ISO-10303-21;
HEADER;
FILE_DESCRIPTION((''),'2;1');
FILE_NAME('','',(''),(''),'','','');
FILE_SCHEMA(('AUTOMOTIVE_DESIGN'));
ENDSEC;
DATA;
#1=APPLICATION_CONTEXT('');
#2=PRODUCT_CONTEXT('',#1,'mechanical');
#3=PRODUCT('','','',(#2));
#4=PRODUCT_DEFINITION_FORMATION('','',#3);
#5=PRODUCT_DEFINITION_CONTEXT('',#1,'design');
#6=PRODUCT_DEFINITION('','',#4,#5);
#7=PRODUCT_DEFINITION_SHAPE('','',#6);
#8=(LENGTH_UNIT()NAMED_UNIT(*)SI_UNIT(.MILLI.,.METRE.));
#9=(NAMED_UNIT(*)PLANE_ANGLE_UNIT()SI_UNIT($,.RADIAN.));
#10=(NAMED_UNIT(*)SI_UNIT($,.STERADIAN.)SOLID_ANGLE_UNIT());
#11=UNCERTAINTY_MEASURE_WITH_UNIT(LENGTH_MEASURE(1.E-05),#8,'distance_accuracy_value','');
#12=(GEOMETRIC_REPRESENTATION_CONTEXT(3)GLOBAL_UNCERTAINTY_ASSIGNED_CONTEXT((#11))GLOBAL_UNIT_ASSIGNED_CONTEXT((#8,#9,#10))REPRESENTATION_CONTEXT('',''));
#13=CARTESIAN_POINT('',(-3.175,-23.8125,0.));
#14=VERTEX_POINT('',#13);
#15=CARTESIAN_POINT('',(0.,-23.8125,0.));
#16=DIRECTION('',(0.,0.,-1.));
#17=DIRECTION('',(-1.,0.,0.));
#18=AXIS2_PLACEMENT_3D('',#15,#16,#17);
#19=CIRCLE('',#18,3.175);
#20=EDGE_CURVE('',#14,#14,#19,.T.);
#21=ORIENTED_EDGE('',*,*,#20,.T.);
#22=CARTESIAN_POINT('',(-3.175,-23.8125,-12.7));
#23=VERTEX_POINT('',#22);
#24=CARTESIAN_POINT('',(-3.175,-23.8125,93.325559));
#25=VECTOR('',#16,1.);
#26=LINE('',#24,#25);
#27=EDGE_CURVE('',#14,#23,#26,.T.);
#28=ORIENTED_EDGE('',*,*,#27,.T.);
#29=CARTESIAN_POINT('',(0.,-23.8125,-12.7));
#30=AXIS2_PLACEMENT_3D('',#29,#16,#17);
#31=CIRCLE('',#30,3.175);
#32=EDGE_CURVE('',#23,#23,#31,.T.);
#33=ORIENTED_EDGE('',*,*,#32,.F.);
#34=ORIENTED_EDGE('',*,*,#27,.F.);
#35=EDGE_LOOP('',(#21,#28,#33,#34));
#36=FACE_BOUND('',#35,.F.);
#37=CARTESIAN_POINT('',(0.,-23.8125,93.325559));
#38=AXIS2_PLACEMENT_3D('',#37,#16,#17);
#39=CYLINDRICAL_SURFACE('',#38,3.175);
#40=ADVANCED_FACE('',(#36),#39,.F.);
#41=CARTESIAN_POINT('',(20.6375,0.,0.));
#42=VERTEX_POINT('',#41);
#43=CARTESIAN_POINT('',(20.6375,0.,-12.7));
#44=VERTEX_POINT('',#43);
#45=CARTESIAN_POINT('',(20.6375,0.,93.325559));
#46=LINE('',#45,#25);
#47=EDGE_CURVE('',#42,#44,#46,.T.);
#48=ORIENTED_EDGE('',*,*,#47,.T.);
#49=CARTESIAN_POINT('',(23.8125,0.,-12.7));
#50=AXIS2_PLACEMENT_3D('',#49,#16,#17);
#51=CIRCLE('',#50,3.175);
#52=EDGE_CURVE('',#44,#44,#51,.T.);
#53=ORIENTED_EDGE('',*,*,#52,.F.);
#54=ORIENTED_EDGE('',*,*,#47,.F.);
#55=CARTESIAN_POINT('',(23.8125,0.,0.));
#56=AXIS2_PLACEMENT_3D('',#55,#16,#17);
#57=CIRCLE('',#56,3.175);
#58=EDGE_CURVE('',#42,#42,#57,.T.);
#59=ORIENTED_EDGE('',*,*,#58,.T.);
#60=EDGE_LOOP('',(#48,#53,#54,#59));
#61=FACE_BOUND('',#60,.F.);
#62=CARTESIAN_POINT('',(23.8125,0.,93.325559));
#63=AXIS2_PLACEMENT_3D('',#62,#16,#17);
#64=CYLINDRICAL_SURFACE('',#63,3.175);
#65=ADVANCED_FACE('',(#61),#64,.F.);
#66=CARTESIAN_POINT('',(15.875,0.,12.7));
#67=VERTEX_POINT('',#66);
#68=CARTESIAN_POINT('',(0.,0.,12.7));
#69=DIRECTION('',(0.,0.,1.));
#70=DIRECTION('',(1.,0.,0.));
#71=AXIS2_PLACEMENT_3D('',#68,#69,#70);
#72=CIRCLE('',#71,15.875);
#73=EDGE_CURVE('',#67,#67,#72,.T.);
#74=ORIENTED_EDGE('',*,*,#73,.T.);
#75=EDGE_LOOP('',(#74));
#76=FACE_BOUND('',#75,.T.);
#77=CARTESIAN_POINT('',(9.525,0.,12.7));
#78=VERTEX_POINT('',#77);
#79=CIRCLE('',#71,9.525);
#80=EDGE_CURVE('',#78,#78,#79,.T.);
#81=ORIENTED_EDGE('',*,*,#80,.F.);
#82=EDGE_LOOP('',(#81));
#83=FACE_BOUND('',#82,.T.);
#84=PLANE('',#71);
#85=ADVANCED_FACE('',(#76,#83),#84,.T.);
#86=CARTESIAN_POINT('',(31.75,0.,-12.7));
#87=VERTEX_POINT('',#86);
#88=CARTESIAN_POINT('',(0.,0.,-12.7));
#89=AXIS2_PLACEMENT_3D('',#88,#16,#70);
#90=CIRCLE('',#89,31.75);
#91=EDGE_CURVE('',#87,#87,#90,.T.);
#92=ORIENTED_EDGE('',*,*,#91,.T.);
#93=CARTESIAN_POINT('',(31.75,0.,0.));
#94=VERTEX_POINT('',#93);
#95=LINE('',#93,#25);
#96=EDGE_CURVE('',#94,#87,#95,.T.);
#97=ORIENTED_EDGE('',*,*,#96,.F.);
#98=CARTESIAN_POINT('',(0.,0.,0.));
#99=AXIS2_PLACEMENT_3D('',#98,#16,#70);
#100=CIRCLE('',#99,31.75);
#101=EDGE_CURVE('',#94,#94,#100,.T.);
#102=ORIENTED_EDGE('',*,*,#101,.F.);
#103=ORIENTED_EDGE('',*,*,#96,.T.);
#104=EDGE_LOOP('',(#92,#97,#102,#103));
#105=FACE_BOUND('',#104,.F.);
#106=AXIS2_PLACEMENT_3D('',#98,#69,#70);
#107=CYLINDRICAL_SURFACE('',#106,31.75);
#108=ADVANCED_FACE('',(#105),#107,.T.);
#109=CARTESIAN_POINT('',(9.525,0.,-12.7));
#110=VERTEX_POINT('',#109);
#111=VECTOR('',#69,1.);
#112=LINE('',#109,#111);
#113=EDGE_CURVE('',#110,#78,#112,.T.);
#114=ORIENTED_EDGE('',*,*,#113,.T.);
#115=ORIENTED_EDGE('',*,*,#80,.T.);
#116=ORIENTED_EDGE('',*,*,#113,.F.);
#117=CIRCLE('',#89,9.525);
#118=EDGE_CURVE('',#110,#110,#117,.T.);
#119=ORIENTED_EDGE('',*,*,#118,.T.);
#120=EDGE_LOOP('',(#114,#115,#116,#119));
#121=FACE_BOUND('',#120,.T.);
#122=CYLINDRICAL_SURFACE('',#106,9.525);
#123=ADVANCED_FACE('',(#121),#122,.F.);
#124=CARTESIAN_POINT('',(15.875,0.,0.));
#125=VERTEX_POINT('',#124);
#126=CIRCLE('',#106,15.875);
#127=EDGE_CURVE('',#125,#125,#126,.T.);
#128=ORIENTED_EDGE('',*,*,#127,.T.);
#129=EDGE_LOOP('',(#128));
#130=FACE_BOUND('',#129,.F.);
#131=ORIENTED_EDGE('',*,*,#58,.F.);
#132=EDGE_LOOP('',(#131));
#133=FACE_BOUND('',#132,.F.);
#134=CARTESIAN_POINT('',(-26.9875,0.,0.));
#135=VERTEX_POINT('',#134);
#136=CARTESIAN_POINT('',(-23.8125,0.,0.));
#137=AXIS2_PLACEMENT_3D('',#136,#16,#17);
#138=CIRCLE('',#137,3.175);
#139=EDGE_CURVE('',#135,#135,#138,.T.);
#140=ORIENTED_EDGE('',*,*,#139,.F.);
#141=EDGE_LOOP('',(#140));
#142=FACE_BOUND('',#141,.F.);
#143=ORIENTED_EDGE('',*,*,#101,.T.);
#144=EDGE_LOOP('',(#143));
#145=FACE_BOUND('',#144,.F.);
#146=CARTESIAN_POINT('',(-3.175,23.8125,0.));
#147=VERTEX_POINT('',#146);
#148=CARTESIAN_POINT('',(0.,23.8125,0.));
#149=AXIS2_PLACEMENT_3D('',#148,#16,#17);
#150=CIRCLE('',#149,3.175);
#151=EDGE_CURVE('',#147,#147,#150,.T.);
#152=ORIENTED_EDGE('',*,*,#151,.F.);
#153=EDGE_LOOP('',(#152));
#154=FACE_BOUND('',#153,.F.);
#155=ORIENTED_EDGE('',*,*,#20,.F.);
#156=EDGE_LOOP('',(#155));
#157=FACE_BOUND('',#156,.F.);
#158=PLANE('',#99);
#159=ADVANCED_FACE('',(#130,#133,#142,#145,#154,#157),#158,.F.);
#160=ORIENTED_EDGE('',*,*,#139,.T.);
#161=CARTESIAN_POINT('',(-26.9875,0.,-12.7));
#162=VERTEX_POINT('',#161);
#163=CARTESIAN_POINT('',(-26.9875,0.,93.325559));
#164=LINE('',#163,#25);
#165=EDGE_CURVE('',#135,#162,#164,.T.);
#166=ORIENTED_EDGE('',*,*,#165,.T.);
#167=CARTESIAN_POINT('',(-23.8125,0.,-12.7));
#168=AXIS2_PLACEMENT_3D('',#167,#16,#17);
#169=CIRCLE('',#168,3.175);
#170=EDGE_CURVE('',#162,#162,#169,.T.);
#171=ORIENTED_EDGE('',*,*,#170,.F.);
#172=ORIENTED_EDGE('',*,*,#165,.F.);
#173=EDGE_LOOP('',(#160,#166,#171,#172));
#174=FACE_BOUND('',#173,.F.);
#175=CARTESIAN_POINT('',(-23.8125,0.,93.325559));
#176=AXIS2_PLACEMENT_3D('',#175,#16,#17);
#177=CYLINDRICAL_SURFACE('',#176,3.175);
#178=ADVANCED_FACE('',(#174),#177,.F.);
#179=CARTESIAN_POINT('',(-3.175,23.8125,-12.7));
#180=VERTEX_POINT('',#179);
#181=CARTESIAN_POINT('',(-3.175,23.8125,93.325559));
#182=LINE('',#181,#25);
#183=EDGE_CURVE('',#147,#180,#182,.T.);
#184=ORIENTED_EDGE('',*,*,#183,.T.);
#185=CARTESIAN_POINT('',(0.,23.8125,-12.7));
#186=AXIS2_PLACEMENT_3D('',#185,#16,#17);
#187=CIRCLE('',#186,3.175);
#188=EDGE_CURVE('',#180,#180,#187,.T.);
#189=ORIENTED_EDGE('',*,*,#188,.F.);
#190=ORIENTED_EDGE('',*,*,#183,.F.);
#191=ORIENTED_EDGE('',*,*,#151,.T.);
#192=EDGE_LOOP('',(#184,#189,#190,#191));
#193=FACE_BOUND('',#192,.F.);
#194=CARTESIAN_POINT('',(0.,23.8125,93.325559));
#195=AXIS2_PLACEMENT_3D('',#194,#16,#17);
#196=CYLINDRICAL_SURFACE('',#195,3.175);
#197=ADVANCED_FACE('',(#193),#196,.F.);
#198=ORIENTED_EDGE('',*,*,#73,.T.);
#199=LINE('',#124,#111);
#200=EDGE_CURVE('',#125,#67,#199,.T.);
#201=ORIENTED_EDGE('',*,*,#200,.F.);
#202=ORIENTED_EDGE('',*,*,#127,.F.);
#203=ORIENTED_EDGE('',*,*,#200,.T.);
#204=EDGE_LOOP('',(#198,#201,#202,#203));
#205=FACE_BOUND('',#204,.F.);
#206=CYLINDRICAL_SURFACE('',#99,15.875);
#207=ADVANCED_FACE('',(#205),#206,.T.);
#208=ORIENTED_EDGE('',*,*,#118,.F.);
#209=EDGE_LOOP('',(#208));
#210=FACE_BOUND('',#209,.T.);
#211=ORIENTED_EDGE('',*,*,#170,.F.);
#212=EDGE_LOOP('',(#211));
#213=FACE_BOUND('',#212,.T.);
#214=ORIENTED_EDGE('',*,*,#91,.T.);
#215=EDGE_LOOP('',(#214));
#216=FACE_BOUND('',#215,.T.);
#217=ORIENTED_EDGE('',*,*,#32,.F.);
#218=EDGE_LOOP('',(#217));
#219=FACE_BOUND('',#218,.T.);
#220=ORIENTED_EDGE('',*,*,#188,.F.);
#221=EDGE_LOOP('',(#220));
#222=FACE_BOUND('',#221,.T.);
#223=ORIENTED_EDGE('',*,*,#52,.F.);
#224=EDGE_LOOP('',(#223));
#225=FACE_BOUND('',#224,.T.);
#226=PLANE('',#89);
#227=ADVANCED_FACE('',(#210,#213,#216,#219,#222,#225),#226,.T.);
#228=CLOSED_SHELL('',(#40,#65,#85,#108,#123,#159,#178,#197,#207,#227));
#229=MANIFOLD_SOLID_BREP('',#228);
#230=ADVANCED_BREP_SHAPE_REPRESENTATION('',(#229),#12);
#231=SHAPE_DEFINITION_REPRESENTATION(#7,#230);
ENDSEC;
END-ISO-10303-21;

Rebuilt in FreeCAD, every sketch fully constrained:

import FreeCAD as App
import Part
import Sketcher
from FreeCAD import Vector
Q = App.Units.Quantity

doc = App.newDocument("Part")
params = doc.addObject("Spreadsheet::Sheet", "Params")
for row, (alias, value) in enumerate([
    ("sketch1_diameter", "1.25 in"),
    ("sketch1_diameter2", "0.75 in"),
    ("pad1_length", "0.5 in"),
    ("sketch2_diameter", "2.5 in"),
    ("sketch2_diameter2", "0.75 in"),
    ("pad2_length", "0.5 in"),
    ("sketch3_diameter", "0.25 in"),
    ("hole_diameter", "0.25 in"),
], start=1):
    params.set(f"A{row}", alias)
    params.set(f"B{row}", "=" + value)
    params.setAlias(f"B{row}", alias)

body = doc.addObject("PartDesign::Body", "Body")

# Sketch on XY plane
sketch1 = body.newObject("Sketcher::SketchObject", "Sketch")
sketch1.AttachmentSupport = (doc.getObject("XY_Plane"), [""])
sketch1.MapMode = "FlatFace"
sketch1.addGeometry([
    Part.Circle(Vector(0, 0, 0), Vector(0, 0, 1), 16),
    Part.Circle(Vector(0, 0, 0), Vector(0, 0, 1), 10),
], False)
sketch1.addConstraint([
    Sketcher.Constraint("Coincident", 0, 3, -1, 1),
    Sketcher.Constraint("Coincident", 1, 3, -1, 1),
    Sketcher.Constraint("Diameter", 0, Q("1.25 in")),
    Sketcher.Constraint("Diameter", 1, Q("0.75 in")),
])
sketch1.setExpression("Constraints[2]", "Params.sketch1_diameter")
sketch1.setExpression("Constraints[3]", "Params.sketch1_diameter2")
pad1 = body.newObject("PartDesign::Pad", "Pad")
pad1.Profile = sketch1
pad1.setExpression("Length", "Params.pad1_length")

# Sketch on XY plane
sketch2 = body.newObject("Sketcher::SketchObject", "Sketch001")
sketch2.AttachmentSupport = (doc.getObject("XY_Plane"), [""])
sketch2.MapMode = "FlatFace"
sketch2.addGeometry([
    Part.Circle(Vector(0, 0, 0), Vector(0, 0, 1), 32),
    Part.Circle(Vector(0, 0, 0), Vector(0, 0, 1), 10),
], False)
sketch2.addConstraint([
    Sketcher.Constraint("Coincident", 0, 3, -1, 1),
    Sketcher.Constraint("Coincident", 1, 3, -1, 1),
    Sketcher.Constraint("Diameter", 0, Q("2.5 in")),
    Sketcher.Constraint("Diameter", 1, Q("0.75 in")),
])
sketch2.setExpression("Constraints[2]", "Params.sketch2_diameter")
sketch2.setExpression("Constraints[3]", "Params.sketch2_diameter2")
pad2 = body.newObject("PartDesign::Pad", "Pad001")
pad2.Profile = sketch2
pad2.setExpression("Length", "Params.pad2_length")
pad2.Reversed = True

# Sketch on XY plane
sketch3 = body.newObject("Sketcher::SketchObject", "Sketch002")
sketch3.AttachmentSupport = (doc.getObject("XY_Plane"), [""])
sketch3.MapMode = "FlatFace"
sketch3.addGeometry([
    Part.Circle(Vector(0, 23.8, 0), Vector(0, 0, 1), 3.2),
    Part.Circle(Vector(23.8, 0, 0), Vector(0, 0, 1), 3.2),
    Part.Circle(Vector(0, -23.8, 0), Vector(0, 0, 1), 3.2),
    Part.Circle(Vector(-23.8, 0, 0), Vector(0, 0, 1), 3.2),
], False)
sketch3.addConstraint([
    Sketcher.Constraint("Equal", 0, 1),
    Sketcher.Constraint("Equal", 1, 2),
    Sketcher.Constraint("Equal", 2, 3),
    Sketcher.Constraint("Symmetric", 0, 3, 2, 3, -1, 1),
    Sketcher.Constraint("Symmetric", 1, 3, 3, 3, -1, 1),
    Sketcher.Constraint("PointOnObject", 0, 3, -2),
    Sketcher.Constraint("PointOnObject", 1, 3, -1),
    Sketcher.Constraint("Diameter", 0, Q("0.25 in")),
    Sketcher.Constraint("DistanceY", -1, 1, 0, 3, Q("0.9375 in")),
    Sketcher.Constraint("DistanceX", -1, 1, 1, 3, Q("0.9375 in")),
])
sketch3.setExpression("Constraints[7]", "Params.sketch3_diameter")
doc.recompute()
hole = body.newObject("PartDesign::Hole", "Hole")
hole.Profile = sketch3
hole.ThreadType = "None"
hole.setExpression("Diameter", "Params.hole_diameter")
hole.DepthType = "ThroughAll"

doc.recompute()
